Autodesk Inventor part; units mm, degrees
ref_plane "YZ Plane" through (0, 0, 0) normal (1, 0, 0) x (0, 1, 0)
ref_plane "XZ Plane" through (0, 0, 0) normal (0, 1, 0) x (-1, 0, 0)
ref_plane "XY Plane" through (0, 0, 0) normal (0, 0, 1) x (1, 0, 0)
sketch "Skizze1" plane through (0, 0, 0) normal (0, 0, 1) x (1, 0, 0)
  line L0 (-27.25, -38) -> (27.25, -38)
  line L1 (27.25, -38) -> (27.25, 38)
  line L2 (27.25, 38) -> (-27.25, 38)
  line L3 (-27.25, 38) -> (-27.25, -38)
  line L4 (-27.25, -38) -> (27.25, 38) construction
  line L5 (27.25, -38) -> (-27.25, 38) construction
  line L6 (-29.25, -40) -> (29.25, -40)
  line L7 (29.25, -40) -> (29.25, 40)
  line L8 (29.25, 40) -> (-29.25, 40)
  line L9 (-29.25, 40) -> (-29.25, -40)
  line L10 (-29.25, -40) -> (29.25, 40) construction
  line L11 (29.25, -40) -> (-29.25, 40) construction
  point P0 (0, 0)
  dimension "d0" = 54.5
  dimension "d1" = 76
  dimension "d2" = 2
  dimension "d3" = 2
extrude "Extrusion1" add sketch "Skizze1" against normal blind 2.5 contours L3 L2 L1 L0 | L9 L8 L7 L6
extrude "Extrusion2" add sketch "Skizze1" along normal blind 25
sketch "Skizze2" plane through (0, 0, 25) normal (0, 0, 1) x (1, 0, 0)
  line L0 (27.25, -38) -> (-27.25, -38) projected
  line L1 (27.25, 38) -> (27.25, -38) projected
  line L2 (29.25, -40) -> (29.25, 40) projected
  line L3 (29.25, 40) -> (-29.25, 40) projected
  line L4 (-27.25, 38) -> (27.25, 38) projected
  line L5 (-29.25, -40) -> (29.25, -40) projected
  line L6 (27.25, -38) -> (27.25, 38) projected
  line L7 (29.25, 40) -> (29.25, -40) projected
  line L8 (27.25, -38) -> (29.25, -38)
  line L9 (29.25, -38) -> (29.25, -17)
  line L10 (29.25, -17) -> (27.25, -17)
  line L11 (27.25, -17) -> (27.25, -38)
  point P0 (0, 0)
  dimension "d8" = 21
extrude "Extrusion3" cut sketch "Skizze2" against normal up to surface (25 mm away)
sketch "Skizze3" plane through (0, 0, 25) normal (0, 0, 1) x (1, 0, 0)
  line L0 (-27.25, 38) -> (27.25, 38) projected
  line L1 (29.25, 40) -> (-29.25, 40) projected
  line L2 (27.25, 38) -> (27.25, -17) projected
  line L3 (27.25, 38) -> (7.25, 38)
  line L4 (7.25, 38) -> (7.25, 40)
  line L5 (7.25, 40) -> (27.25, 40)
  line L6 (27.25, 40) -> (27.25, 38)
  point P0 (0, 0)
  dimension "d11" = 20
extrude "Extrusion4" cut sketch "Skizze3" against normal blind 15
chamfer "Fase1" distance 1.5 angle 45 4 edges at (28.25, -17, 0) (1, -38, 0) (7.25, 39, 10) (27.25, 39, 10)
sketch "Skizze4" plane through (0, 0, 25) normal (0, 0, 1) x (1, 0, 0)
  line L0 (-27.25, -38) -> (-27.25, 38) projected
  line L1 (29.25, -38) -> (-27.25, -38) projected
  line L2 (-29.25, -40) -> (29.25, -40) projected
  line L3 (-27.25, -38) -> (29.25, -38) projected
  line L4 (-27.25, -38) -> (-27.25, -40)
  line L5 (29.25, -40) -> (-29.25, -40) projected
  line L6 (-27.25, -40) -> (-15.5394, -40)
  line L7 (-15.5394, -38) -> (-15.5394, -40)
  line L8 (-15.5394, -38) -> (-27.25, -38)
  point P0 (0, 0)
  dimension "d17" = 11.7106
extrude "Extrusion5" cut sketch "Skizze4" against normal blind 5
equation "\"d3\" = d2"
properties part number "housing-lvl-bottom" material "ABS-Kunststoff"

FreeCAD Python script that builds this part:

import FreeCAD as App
import Part
import Sketcher

V = App.Vector
Q = App.Units.Quantity


def edges_at(feature, points):
    """Names of the edges that pass closest to the given points."""
    edges = feature.Shape.Edges
    near = lambda p: min(range(len(edges)), key=lambda i: edges[i].distToShape(Part.Vertex(*p))[0])
    return sorted({f"Edge{near(p) + 1}" for p in points})

doc = App.newDocument("Part")
body = doc.addObject("PartDesign::Body", "Body")

sketch1 = body.newObject("Sketcher::SketchObject", "Sketch")
sketch1.AttachmentSupport = (doc.getObject("XY_Plane"), [""])
sketch1.MapMode = "FlatFace"
sketch1.addGeometry([
    Part.LineSegment(V(-29, 40, 0), V(-29, -40, 0)),
    Part.LineSegment(V(-29, -40, 0), V(29, -40, 0)),
    Part.LineSegment(V(29, -40, 0), V(29, 40, 0)),
    Part.LineSegment(V(29, 40, 0), V(-29, 40, 0)),
], False)
sketch1.addConstraint([
    Sketcher.Constraint("Coincident", 0, 2, 1, 1),
    Sketcher.Constraint("Coincident", 1, 2, 2, 1),
    Sketcher.Constraint("Coincident", 2, 2, 3, 1),
    Sketcher.Constraint("Coincident", 3, 2, 0, 1),
    Sketcher.Constraint("Vertical", 0),
    Sketcher.Constraint("Horizontal", 1),
    Sketcher.Constraint("Vertical", 2),
    Sketcher.Constraint("Horizontal", 3),
    Sketcher.Constraint("Symmetric", 0, 2, 2, 2, -1, 1),
    Sketcher.Constraint("DistanceY", 0, 2, 0, 1, Q("80 mm")),
    Sketcher.Constraint("DistanceX", 1, 1, 1, 2, Q("58.5 mm")),
])
pad1 = body.newObject("PartDesign::Pad", "Pad")
pad1.Profile = sketch1
pad1.Length = 2.5
pad1.Reversed = True

sketch2 = body.newObject("Sketcher::SketchObject", "Sketch001")
sketch2.AttachmentSupport = (doc.getObject("XY_Plane"), [""])
sketch2.MapMode = "FlatFace"
sketch2.addGeometry([
    Part.LineSegment(V(-29, 40, 0), V(-29, -40, 0)),
    Part.LineSegment(V(-29, -40, 0), V(29, -40, 0)),
    Part.LineSegment(V(29, -40, 0), V(29, 40, 0)),
    Part.LineSegment(V(29, 40, 0), V(-29, 40, 0)),
    Part.LineSegment(V(27, -38, 0), V(-27, -38, 0)),
    Part.LineSegment(V(-27, -38, 0), V(-27, 38, 0)),
    Part.LineSegment(V(-27, 38, 0), V(27, 38, 0)),
    Part.LineSegment(V(27, 38, 0), V(27, -38, 0)),
], False)
sketch2.addConstraint([
    Sketcher.Constraint("Coincident", 0, 2, 1, 1),
    Sketcher.Constraint("Coincident", 1, 2, 2, 1),
    Sketcher.Constraint("Coincident", 2, 2, 3, 1),
    Sketcher.Constraint("Coincident", 3, 2, 0, 1),
    Sketcher.Constraint("Coincident", 4, 2, 5, 1),
    Sketcher.Constraint("Coincident", 5, 2, 6, 1),
    Sketcher.Constraint("Coincident", 6, 2, 7, 1),
    Sketcher.Constraint("Coincident", 7, 2, 4, 1),
    Sketcher.Constraint("Vertical", 0),
    Sketcher.Constraint("Horizontal", 1),
    Sketcher.Constraint("Vertical", 2),
    Sketcher.Constraint("Horizontal", 3),
    Sketcher.Constraint("Horizontal", 4),
    Sketcher.Constraint("Vertical", 5),
    Sketcher.Constraint("Horizontal", 6),
    Sketcher.Constraint("Vertical", 7),
    Sketcher.Constraint("Symmetric", 0, 2, 2, 2, -1, 1),
    Sketcher.Constraint("Symmetric", 4, 2, 6, 2, -1, 1),
    Sketcher.Constraint("DistanceY", 5, 1, 5, 2, Q("76 mm")),
    Sketcher.Constraint("DistanceX", 4, 2, 4, 1, Q("54.5 mm")),
    Sketcher.Constraint("DistanceX", 0, 2, 4, 2, Q("2 mm")),
    Sketcher.Constraint("DistanceY", 0, 2, 4, 2, Q("2 mm")),
])
pad2 = body.newObject("PartDesign::Pad", "Pad001")
pad2.Profile = sketch2
pad2.Length = 25

sketch3 = body.newObject("Sketcher::SketchObject", "Sketch002")
sketch3.AttachmentSupport = (doc.getObject("XY_Plane"), [""])
sketch3.MapMode = "FlatFace"
sketch3.AttachmentOffset = App.Placement(V(0, 0, 25), App.Rotation())
sketch3.addGeometry([
    Part.LineSegment(V(29.2, -17, 0), V(27.2, -17, 0)),
    Part.LineSegment(V(27.2, -17, 0), V(27.2, -38, 0)),
    Part.LineSegment(V(27.2, -38, 0), V(29.2, -38, 0)),
    Part.LineSegment(V(29.2, -38, 0), V(29.2, -17, 0)),
], False)
sketch3.addConstraint([
    Sketcher.Constraint("Coincident", 0, 2, 1, 1),
    Sketcher.Constraint("Coincident", 1, 2, 2, 1),
    Sketcher.Constraint("Coincident", 2, 2, 3, 1),
    Sketcher.Constraint("Coincident", 3, 2, 0, 1),
    Sketcher.Constraint("Horizontal", 0),
    Sketcher.Constraint("Vertical", 1),
    Sketcher.Constraint("Horizontal", 2),
    Sketcher.Constraint("Vertical", 3),
    Sketcher.Constraint("DistanceY", 1, 2, 1, 1, Q("21 mm")),
    Sketcher.Constraint("DistanceX", 0, 2, 0, 1, Q("2 mm")),
    Sketcher.Constraint("DistanceY", 0, 2, -1, 1, Q("17 mm")),
    Sketcher.Constraint("DistanceX", -1, 1, 0, 2, Q("27.25 mm")),
])
pocket1 = body.newObject("PartDesign::Pocket", "Pocket")
pocket1.Profile = sketch3
pocket1.Length = 25

sketch4 = body.newObject("Sketcher::SketchObject", "Sketch003")
sketch4.AttachmentSupport = (doc.getObject("XY_Plane"), [""])
sketch4.MapMode = "FlatFace"
sketch4.AttachmentOffset = App.Placement(V(0, 0, 25), App.Rotation())
sketch4.addGeometry([
    Part.LineSegment(V(7.2, 40, 0), V(7.2, 38, 0)),
    Part.LineSegment(V(7.2, 38, 0), V(27.2, 38, 0)),
    Part.LineSegment(V(27.2, 38, 0), V(27.2, 40, 0)),
    Part.LineSegment(V(27.2, 40, 0), V(7.2, 40, 0)),
], False)
sketch4.addConstraint([
    Sketcher.Constraint("Coincident", 0, 2, 1, 1),
    Sketcher.Constraint("Coincident", 1, 2, 2, 1),
    Sketcher.Constraint("Coincident", 2, 2, 3, 1),
    Sketcher.Constraint("Coincident", 3, 2, 0, 1),
    Sketcher.Constraint("Vertical", 0),
    Sketcher.Constraint("Horizontal", 1),
    Sketcher.Constraint("Vertical", 2),
    Sketcher.Constraint("Horizontal", 3),
    Sketcher.Constraint("DistanceX", 1, 1, 1, 2, Q("20 mm")),
    Sketcher.Constraint("DistanceY", 0, 2, 0, 1, Q("2 mm")),
    Sketcher.Constraint("DistanceY", -1, 1, 0, 2, Q("38 mm")),
    Sketcher.Constraint("DistanceX", -1, 1, 0, 2, Q("7.25 mm")),
])
pocket2 = body.newObject("PartDesign::Pocket", "Pocket001")
pocket2.Profile = sketch4
pocket2.Length = 15
doc.recompute()

chamfer = body.newObject("PartDesign::Chamfer", "Chamfer")
chamfer.Base = (pocket2, edges_at(pocket2, [
    (28.25, -17, 0),
    (1, -38, 0),
    (7.25, 39, 10),
    (27.25, 39, 10),
]))
chamfer.Size = 1.5

sketch5 = body.newObject("Sketcher::SketchObject", "Sketch004")
sketch5.AttachmentSupport = (doc.getObject("XY_Plane"), [""])
sketch5.MapMode = "FlatFace"
sketch5.AttachmentOffset = App.Placement(V(0, 0, 25), App.Rotation())
sketch5.addGeometry([
    Part.LineSegment(V(-15.5, -40, 0), V(-15.5, -38, 0)),
    Part.LineSegment(V(-15.5, -38, 0), V(-27.2, -38, 0)),
    Part.LineSegment(V(-27.2, -38, 0), V(-27.2, -40, 0)),
    Part.LineSegment(V(-27.2, -40, 0), V(-15.5, -40, 0)),
], False)
sketch5.addConstraint([
    Sketcher.Constraint("Coincident", 0, 2, 1, 1),
    Sketcher.Constraint("Coincident", 1, 2, 2, 1),
    Sketcher.Constraint("Coincident", 2, 2, 3, 1),
    Sketcher.Constraint("Coincident", 3, 2, 0, 1),
    Sketcher.Constraint("Vertical", 0),
    Sketcher.Constraint("Horizontal", 1),
    Sketcher.Constraint("Vertical", 2),
    Sketcher.Constraint("Horizontal", 3),
    Sketcher.Constraint("DistanceY", 0, 1, 0, 2, Q("2 mm")),
    Sketcher.Constraint("DistanceX", 1, 2, 1, 1, Q("11.7106 mm")),
    Sketcher.Constraint("DistanceY", 0, 2, -1, 1, Q("38 mm")),
    Sketcher.Constraint("DistanceX", 1, 2, -1, 1, Q("27.25 mm")),
])
pocket3 = body.newObject("PartDesign::Pocket", "Pocket002")
pocket3.Profile = sketch5
pocket3.Length = 5

doc.recompute()
